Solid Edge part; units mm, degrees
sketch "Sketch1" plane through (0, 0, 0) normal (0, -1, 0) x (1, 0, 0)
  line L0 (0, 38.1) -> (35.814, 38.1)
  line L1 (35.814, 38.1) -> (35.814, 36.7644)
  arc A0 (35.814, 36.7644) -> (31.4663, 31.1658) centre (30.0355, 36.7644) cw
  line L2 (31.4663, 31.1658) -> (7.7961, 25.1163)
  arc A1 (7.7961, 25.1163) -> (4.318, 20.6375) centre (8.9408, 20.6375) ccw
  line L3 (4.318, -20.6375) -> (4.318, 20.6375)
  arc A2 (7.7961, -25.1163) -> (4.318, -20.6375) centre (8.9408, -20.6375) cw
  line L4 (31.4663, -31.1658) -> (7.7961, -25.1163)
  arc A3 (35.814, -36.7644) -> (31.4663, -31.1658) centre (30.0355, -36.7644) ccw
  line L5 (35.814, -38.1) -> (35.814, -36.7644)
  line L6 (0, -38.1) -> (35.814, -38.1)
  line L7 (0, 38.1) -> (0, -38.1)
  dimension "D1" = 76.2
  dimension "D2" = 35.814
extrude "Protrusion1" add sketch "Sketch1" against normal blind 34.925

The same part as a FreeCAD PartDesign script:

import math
import FreeCAD as App
import Part
import Sketcher
from FreeCAD import Vector
Q = App.Units.Quantity

doc = App.newDocument("Part")
body = doc.addObject("PartDesign::Body", "Body")

sketch1 = body.newObject("Sketcher::SketchObject", "Sketch")
sketch1.AttachmentSupport = (doc.getObject("XZ_Plane"), [""])
sketch1.MapMode = "FlatFace"
sketch1.addGeometry(Part.LineSegment(Vector(35.8, 38.1, 0), Vector(0, 38.1, 0)), False)
sketch1.addGeometry(Part.LineSegment(Vector(0, 38.1, 0), Vector(0, -38.1, 0)), False)
sketch1.addGeometry(Part.LineSegment(Vector(0, -38.1, 0), Vector(35.8, -38.1, 0)), False)
sketch1.addGeometry(Part.LineSegment(Vector(35.8, -38.1, 0), Vector(35.8, -36.8, 0)), False)
sketch1.addGeometry(Part.ArcOfCircle(Part.Circle(Vector(30, -36.8, 0), Vector(0, 0, 1), 5.8), math.radians(0), math.radians(76)), False)
sketch1.addGeometry(Part.LineSegment(Vector(31.5, -31.2, 0), Vector(7.8, -25.1, 0)), False)
sketch1.addGeometry(Part.ArcOfCircle(Part.Circle(Vector(8.9, -20.6, 0), Vector(0, 0, 1), 4.6), math.radians(180), math.radians(256)), False)
sketch1.addGeometry(Part.LineSegment(Vector(4.3, -20.6, 0), Vector(4.3, 20.6, 0)), False)
sketch1.addGeometry(Part.ArcOfCircle(Part.Circle(Vector(8.9, 20.6, 0), Vector(0, 0, 1), 4.6), math.radians(104), math.radians(180)), False)
sketch1.addGeometry(Part.LineSegment(Vector(7.8, 25.1, 0), Vector(31.5, 31.2, 0)), False)
sketch1.addGeometry(Part.ArcOfCircle(Part.Circle(Vector(30, 36.8, 0), Vector(0, 0, 1), 5.8), math.radians(-76), math.radians(0)), False)
sketch1.addGeometry(Part.LineSegment(Vector(35.8, 36.8, 0), Vector(35.8, 38.1, 0)), False)
sketch1.addConstraint(Sketcher.Constraint("Coincident", 0, 2, 1, 1))
sketch1.addConstraint(Sketcher.Constraint("Coincident", 1, 2, 2, 1))
sketch1.addConstraint(Sketcher.Constraint("Coincident", 2, 2, 3, 1))
sketch1.addConstraint(Sketcher.Constraint("Tangent", 3, 2, 4, 1))
sketch1.addConstraint(Sketcher.Constraint("Tangent", 4, 2, 5, 1))
sketch1.addConstraint(Sketcher.Constraint("Tangent", 5, 2, 6, 2))
sketch1.addConstraint(Sketcher.Constraint("Tangent", 6, 1, 7, 1))
sketch1.addConstraint(Sketcher.Constraint("Tangent", 7, 2, 8, 2))
sketch1.addConstraint(Sketcher.Constraint("Tangent", 8, 1, 9, 1))
sketch1.addConstraint(Sketcher.Constraint("Tangent", 9, 2, 10, 1))
sketch1.addConstraint(Sketcher.Constraint("Tangent", 10, 2, 11, 1))
sketch1.addConstraint(Sketcher.Constraint("Coincident", 11, 2, 0, 1))
sketch1.addConstraint(Sketcher.Constraint("Horizontal", 0))
sketch1.addConstraint(Sketcher.Constraint("Vertical", 1))
sketch1.addConstraint(Sketcher.Constraint("Horizontal", 2))
sketch1.addConstraint(Sketcher.Constraint("Vertical", 3))
sketch1.addConstraint(Sketcher.Constraint("Vertical", 7))
sketch1.addConstraint(Sketcher.Constraint("Vertical", 11))
sketch1.addConstraint(Sketcher.Constraint("Equal", 6, 8))
sketch1.addConstraint(Sketcher.Constraint("Equal", 4, 10))
sketch1.addConstraint(Sketcher.Constraint("Symmetric", 0, 2, 1, 2, -1, 1))
sketch1.addConstraint(Sketcher.Constraint("Symmetric", 4, 3, 10, 3, -1))
sketch1.addConstraint(Sketcher.Constraint("Vertical", 5, 2, 8, 1))
sketch1.addConstraint(Sketcher.Constraint("DistanceY", 1, 2, 1, 1, Q("3 in")))
sketch1.addConstraint(Sketcher.Constraint("Radius", 6, Q("0.182 in")))
sketch1.addConstraint(Sketcher.Constraint("DistanceX", 0, 2, 0, 1, Q("1.41 in")))
sketch1.addConstraint(Sketcher.Constraint("Radius", 4, Q("0.2275 in")))
sketch1.addConstraint(Sketcher.Constraint("DistanceY", 7, 1, 7, 2, Q("1.625 in")))
sketch1.addConstraint(Sketcher.Constraint("DistanceX", -1, 1, 6, 1, Q("0.17 in")))
sketch1.addConstraint(Sketcher.Constraint("DistanceY", 4, 2, -1, 1, Q("1.227 in")))
pad1 = body.newObject("PartDesign::Pad", "Pad")
pad1.Profile = sketch1
pad1.Length = Q("1.375 in")
pad1.Reversed = True

doc.recompute()
